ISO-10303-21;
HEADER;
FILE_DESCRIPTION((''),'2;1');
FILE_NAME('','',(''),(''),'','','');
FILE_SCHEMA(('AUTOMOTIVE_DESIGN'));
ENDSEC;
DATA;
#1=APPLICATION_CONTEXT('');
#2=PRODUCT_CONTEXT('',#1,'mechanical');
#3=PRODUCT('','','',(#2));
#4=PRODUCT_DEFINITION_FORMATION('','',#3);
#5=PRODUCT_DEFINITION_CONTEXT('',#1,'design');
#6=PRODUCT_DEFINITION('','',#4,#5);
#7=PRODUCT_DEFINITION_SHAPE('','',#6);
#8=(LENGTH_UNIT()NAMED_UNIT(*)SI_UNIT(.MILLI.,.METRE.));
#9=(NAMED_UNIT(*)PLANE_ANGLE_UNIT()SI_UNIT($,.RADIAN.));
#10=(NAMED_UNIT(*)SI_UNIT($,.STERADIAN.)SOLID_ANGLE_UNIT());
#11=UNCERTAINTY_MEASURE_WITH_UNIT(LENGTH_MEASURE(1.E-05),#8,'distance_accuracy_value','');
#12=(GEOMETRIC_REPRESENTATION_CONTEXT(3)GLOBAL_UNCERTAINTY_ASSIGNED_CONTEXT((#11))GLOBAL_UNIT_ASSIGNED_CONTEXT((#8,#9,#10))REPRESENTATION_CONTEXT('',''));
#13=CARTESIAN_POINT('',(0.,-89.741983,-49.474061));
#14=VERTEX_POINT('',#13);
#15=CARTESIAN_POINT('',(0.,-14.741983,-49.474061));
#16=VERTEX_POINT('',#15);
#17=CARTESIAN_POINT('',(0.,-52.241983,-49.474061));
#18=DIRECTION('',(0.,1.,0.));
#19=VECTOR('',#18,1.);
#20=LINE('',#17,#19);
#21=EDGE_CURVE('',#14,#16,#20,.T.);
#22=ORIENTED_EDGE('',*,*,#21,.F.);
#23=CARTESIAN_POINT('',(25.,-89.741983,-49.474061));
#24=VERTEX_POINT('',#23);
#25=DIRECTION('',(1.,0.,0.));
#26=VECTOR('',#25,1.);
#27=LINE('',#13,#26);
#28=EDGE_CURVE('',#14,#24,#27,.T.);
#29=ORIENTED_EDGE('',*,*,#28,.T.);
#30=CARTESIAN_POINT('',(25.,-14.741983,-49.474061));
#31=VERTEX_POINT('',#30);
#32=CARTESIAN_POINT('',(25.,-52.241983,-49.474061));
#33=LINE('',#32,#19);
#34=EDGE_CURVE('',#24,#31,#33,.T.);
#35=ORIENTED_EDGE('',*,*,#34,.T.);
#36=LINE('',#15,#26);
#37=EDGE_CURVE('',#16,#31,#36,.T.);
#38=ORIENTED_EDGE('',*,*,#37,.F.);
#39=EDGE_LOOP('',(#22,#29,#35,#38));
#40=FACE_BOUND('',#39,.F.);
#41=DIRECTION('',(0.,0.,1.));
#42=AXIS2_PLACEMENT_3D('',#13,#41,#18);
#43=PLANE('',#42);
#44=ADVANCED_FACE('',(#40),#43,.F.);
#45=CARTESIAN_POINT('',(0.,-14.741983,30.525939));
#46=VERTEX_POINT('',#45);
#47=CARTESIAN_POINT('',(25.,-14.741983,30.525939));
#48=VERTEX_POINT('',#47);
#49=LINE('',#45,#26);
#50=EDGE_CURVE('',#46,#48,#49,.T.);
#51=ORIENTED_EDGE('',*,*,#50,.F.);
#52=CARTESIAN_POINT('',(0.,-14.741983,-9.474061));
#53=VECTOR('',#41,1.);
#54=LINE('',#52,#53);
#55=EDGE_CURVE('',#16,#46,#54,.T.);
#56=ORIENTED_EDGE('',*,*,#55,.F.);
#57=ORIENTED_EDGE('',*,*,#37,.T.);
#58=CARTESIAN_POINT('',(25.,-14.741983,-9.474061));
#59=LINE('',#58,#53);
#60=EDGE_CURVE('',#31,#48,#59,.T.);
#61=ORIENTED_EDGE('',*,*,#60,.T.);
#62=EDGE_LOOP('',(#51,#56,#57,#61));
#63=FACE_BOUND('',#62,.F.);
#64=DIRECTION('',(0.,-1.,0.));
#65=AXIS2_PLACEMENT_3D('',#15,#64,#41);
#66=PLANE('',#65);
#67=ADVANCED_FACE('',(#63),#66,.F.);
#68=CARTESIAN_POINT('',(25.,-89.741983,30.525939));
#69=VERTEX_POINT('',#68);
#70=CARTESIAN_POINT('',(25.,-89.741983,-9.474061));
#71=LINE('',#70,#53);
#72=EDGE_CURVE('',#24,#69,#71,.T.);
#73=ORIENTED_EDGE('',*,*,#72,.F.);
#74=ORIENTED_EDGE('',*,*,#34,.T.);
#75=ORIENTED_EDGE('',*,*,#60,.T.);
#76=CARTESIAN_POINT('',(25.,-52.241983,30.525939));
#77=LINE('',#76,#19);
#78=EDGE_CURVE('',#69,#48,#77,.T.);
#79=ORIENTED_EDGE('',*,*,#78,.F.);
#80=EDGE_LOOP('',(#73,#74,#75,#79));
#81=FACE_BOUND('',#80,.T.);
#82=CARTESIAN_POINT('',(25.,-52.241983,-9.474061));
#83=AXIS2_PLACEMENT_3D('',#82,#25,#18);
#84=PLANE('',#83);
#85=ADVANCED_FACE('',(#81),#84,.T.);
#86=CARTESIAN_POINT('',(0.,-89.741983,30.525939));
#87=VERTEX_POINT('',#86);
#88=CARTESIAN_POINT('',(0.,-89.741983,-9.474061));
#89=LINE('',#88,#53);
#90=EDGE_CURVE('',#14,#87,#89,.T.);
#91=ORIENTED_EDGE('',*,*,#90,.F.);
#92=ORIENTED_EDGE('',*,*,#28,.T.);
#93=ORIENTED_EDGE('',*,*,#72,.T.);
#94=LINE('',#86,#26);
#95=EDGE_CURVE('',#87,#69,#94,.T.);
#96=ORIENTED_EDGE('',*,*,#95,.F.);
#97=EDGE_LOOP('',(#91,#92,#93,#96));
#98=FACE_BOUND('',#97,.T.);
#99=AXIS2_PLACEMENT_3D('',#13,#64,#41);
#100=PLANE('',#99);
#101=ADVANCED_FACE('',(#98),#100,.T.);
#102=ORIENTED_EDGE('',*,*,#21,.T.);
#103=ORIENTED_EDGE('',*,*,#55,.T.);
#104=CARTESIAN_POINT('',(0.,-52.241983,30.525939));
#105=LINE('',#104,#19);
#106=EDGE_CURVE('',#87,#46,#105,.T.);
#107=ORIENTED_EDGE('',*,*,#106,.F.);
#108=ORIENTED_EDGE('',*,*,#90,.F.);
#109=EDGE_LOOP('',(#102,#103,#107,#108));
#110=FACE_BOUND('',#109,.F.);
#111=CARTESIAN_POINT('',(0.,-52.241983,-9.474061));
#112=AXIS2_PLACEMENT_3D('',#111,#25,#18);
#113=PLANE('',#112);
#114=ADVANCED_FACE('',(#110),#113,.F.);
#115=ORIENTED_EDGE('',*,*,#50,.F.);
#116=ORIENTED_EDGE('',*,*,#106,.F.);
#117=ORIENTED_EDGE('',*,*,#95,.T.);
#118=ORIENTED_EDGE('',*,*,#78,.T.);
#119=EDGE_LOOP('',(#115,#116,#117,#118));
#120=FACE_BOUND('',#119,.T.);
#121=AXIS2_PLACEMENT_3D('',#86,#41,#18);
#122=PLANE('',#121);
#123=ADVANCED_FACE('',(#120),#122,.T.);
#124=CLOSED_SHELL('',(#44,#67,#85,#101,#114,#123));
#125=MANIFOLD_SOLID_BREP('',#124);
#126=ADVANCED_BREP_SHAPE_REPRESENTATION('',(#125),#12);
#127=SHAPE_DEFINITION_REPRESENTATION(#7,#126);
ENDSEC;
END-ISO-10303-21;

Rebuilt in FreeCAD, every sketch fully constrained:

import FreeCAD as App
import Part
import Sketcher

doc = App.newDocument("Part")
params = doc.addObject("Spreadsheet::Sheet", "Params")
for row, (alias, value) in enumerate([
    ("sketch1_width", "75 mm"),
    ("sketch1_height", "80 mm"),
    ("pad1_length", "25 mm"),
    ("sketch2_width", "75 mm"),
    ("sketch2_height", "80 mm"),
    ("pad2_length", "25 mm"),
    ("sketch3_width", "75 mm"),
    ("sketch3_height", "80 mm"),
    ("pad3_length", "25 mm"),
], start=1):
    params.set(f"A{row}", alias)
    params.set(f"B{row}", "=" + value)
    params.setAlias(f"B{row}", alias)

body = doc.addObject("PartDesign::Body", "Body")

sketch1 = doc.addObject("Sketcher::SketchObject", "Sketch")
body.addObject(sketch1)
sketch1.AttachmentSupport = (doc.YZ_Plane, [""])
sketch1.MapMode = "FlatFace"
sketch1.addGeometry([
    Part.LineSegment(App.Vector(-89.741983, 30.525939, 0), App.Vector(-89.741983, -49.474061, 0)),
    Part.LineSegment(App.Vector(-89.741983, -49.474061, 0), App.Vector(-14.741983, -49.474061, 0)),
    Part.LineSegment(App.Vector(-14.741983, -49.474061, 0), App.Vector(-14.741983, 30.525939, 0)),
    Part.LineSegment(App.Vector(-14.741983, 30.525939, 0), App.Vector(-89.741983, 30.525939, 0)),
], False)
sketch1.addConstraint([
    Sketcher.Constraint("Coincident", 0, 2, 1, 1),
    Sketcher.Constraint("Coincident", 1, 2, 2, 1),
    Sketcher.Constraint("Coincident", 2, 2, 3, 1),
    Sketcher.Constraint("Coincident", 3, 2, 0, 1),
    Sketcher.Constraint("Vertical", 0),
    Sketcher.Constraint("Horizontal", 1),
    Sketcher.Constraint("Vertical", 2),
    Sketcher.Constraint("Horizontal", 3),
    Sketcher.Constraint("DistanceX", 1, 1, 1, 2, 75.0),
    Sketcher.Constraint("DistanceY", 0, 2, 0, 1, 80.0),
    Sketcher.Constraint("DistanceY", 0, 2, -1, 1, 49.474061),
    Sketcher.Constraint("DistanceX", 0, 2, -1, 1, 89.741983),
])
sketch1.setExpression("Constraints[8]", "Params.sketch1_width")
sketch1.setExpression("Constraints[9]", "Params.sketch1_height")
pad1 = doc.addObject("PartDesign::Pad", "Pad")
body.addObject(pad1)
pad1.Profile = sketch1
pad1.setExpression("Length", "Params.pad1_length")

sketch2 = doc.addObject("Sketcher::SketchObject", "Sketch001")
body.addObject(sketch2)
sketch2.AttachmentSupport = (doc.YZ_Plane, [""])
sketch2.MapMode = "FlatFace"
sketch2.addGeometry([
    Part.LineSegment(App.Vector(-89.741983, 30.525939, 0), App.Vector(-89.741983, -49.474061, 0)),
    Part.LineSegment(App.Vector(-89.741983, -49.474061, 0), App.Vector(-14.741983, -49.474061, 0)),
    Part.LineSegment(App.Vector(-14.741983, -49.474061, 0), App.Vector(-14.741983, 30.525939, 0)),
    Part.LineSegment(App.Vector(-14.741983, 30.525939, 0), App.Vector(-89.741983, 30.525939, 0)),
], False)
sketch2.addConstraint([
    Sketcher.Constraint("Coincident", 0, 2, 1, 1),
    Sketcher.Constraint("Coincident", 1, 2, 2, 1),
    Sketcher.Constraint("Coincident", 2, 2, 3, 1),
    Sketcher.Constraint("Coincident", 3, 2, 0, 1),
    Sketcher.Constraint("Vertical", 0),
    Sketcher.Constraint("Horizontal", 1),
    Sketcher.Constraint("Vertical", 2),
    Sketcher.Constraint("Horizontal", 3),
    Sketcher.Constraint("DistanceX", 1, 1, 1, 2, 75.0),
    Sketcher.Constraint("DistanceY", 0, 2, 0, 1, 80.0),
    Sketcher.Constraint("DistanceY", 0, 2, -1, 1, 49.474061),
    Sketcher.Constraint("DistanceX", 0, 2, -1, 1, 89.741983),
])
sketch2.setExpression("Constraints[8]", "Params.sketch2_width")
sketch2.setExpression("Constraints[9]", "Params.sketch2_height")
pad2 = doc.addObject("PartDesign::Pad", "Pad001")
body.addObject(pad2)
pad2.Profile = sketch2
pad2.setExpression("Length", "Params.pad2_length")

sketch3 = doc.addObject("Sketcher::SketchObject", "Sketch002")
body.addObject(sketch3)
sketch3.AttachmentSupport = (doc.YZ_Plane, [""])
sketch3.MapMode = "FlatFace"
sketch3.addGeometry([
    Part.LineSegment(App.Vector(-89.741983, 30.525939, 0), App.Vector(-89.741983, -49.474061, 0)),
    Part.LineSegment(App.Vector(-89.741983, -49.474061, 0), App.Vector(-14.741983, -49.474061, 0)),
    Part.LineSegment(App.Vector(-14.741983, -49.474061, 0), App.Vector(-14.741983, 30.525939, 0)),
    Part.LineSegment(App.Vector(-14.741983, 30.525939, 0), App.Vector(-89.741983, 30.525939, 0)),
], False)
sketch3.addConstraint([
    Sketcher.Constraint("Coincident", 0, 2, 1, 1),
    Sketcher.Constraint("Coincident", 1, 2, 2, 1),
    Sketcher.Constraint("Coincident", 2, 2, 3, 1),
    Sketcher.Constraint("Coincident", 3, 2, 0, 1),
    Sketcher.Constraint("Vertical", 0),
    Sketcher.Constraint("Horizontal", 1),
    Sketcher.Constraint("Vertical", 2),
    Sketcher.Constraint("Horizontal", 3),
    Sketcher.Constraint("DistanceX", 1, 1, 1, 2, 75.0),
    Sketcher.Constraint("DistanceY", 0, 2, 0, 1, 80.0),
    Sketcher.Constraint("DistanceY", 0, 2, -1, 1, 49.474061),
    Sketcher.Constraint("DistanceX", 0, 2, -1, 1, 89.741983),
])
sketch3.setExpression("Constraints[8]", "Params.sketch3_width")
sketch3.setExpression("Constraints[9]", "Params.sketch3_height")
pad3 = doc.addObject("PartDesign::Pad", "Pad002")
body.addObject(pad3)
pad3.Profile = sketch3
pad3.setExpression("Length", "Params.pad3_length")

doc.recompute()
